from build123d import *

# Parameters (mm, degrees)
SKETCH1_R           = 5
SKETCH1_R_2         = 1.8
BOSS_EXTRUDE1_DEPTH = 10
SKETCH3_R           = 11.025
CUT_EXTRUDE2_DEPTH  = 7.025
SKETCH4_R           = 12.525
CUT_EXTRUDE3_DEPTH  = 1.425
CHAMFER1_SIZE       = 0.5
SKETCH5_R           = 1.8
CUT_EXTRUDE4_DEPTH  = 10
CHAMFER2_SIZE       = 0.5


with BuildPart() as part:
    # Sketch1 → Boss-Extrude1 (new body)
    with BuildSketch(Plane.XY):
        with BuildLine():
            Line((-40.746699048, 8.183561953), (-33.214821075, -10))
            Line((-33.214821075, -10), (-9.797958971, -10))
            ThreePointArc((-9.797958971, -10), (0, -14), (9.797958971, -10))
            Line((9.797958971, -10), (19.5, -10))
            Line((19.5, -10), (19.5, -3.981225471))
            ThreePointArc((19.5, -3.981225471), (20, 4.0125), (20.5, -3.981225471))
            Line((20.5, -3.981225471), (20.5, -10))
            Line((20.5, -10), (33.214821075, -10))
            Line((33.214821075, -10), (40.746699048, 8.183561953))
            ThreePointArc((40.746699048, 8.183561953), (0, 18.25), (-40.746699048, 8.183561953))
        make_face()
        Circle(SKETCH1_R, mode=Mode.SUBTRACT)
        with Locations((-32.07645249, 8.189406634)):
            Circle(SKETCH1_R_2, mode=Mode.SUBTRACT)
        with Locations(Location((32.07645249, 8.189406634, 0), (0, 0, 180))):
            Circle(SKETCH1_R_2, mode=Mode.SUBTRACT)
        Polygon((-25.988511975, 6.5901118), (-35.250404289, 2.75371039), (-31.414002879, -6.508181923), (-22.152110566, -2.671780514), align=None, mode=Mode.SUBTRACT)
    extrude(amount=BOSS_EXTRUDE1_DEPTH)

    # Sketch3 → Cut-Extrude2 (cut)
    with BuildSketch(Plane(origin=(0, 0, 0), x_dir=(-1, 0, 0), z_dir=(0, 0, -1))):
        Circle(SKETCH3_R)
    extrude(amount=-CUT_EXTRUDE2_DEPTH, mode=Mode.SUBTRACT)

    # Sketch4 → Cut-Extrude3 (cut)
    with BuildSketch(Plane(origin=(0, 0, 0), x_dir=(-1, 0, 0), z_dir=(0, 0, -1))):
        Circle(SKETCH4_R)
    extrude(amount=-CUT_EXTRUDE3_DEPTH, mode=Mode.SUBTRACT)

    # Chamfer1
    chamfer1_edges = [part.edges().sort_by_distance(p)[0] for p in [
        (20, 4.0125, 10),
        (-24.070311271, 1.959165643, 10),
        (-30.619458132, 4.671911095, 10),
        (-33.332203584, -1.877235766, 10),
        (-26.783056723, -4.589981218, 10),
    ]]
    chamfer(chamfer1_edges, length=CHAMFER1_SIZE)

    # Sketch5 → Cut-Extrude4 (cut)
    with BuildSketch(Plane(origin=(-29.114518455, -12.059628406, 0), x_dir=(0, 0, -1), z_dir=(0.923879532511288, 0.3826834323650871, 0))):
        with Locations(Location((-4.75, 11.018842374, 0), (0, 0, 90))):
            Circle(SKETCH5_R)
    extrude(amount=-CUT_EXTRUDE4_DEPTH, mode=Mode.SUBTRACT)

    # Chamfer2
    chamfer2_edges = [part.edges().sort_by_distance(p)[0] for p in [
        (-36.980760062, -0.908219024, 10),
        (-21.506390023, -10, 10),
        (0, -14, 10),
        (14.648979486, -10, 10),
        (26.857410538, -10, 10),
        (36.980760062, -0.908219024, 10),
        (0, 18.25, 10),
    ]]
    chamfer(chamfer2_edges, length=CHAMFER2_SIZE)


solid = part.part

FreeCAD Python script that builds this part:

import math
import FreeCAD as App
import Part
import Sketcher
from FreeCAD import Vector
Q = App.Units.Quantity


def edges_at(feature, points):
    """Names of the edges that pass closest to the given points."""
    edges = feature.Shape.Edges
    near = lambda p: min(range(len(edges)), key=lambda i: edges[i].distToShape(Part.Vertex(*p))[0])
    return sorted({f"Edge{near(p) + 1}" for p in points})

doc = App.newDocument("Part")
body = doc.addObject("PartDesign::Body", "Body")

# Sketch on XY plane
sketch1 = body.newObject("Sketcher::SketchObject", "Sketch")
sketch1.AttachmentSupport = (doc.getObject("XY_Plane"), [""])
sketch1.MapMode = "FlatFace"
sketch1.addGeometry([
    Part.LineSegment(Vector(-40.7, 8.2, 0), Vector(-33.2, -10, 0)),  # 0
    Part.LineSegment(Vector(-33.2, -10, 0), Vector(-9.8, -10, 0)),  # 1
    Part.ArcOfCircle(Part.Circle(Vector(0, 0, 0), Vector(0, 0, 1), 14), math.radians(-134), math.radians(-46)),  # 2
    Part.LineSegment(Vector(9.8, -10, 0), Vector(19.5, -10, 0)),  # 3
    Part.LineSegment(Vector(19.5, -10, 0), Vector(19.5, -4, 0)),  # 4
    Part.ArcOfCircle(Part.Circle(Vector(20, 0, 0), Vector(0, 0, 1), 4), math.radians(-83), math.radians(263)),  # 5
    Part.LineSegment(Vector(20.5, -4, 0), Vector(20.5, -10, 0)),  # 6
    Part.LineSegment(Vector(20.5, -10, 0), Vector(33.2, -10, 0)),  # 7
    Part.LineSegment(Vector(33.2, -10, 0), Vector(40.7, 8.2, 0)),  # 8
    Part.ArcOfCircle(Part.Circle(Vector(0, -69.3, 0), Vector(0, 0, 1), 87.5), math.radians(62), math.radians(118)),  # 9
    Part.LineSegment(Vector(-35.3, 2.8, 0), Vector(-26, 6.6, 0)),  # 10
    Part.LineSegment(Vector(-26, 6.6, 0), Vector(-22.2, -2.7, 0)),  # 11
    Part.LineSegment(Vector(-22.2, -2.7, 0), Vector(-31.4, -6.5, 0)),  # 12
    Part.LineSegment(Vector(-31.4, -6.5, 0), Vector(-35.3, 2.8, 0)),  # 13
    Part.Circle(Vector(0, 0, 0), Vector(0, 0, 1), 5),  # 14
    Part.Circle(Vector(-32.1, 8.2, 0), Vector(0, 0, 1), 1.8),  # 15
    Part.Circle(Vector(32.1, 8.2, 0), Vector(0, 0, 1), 1.8),  # 16
], False)
sketch1.addConstraint([
    Sketcher.Constraint("Coincident", 0, 2, 1, 1),
    Sketcher.Constraint("Coincident", 1, 2, 2, 1),
    Sketcher.Constraint("Coincident", 2, 2, 3, 1),
    Sketcher.Constraint("Coincident", 3, 2, 4, 1),
    Sketcher.Constraint("Coincident", 4, 2, 5, 2),
    Sketcher.Constraint("Coincident", 5, 1, 6, 1),
    Sketcher.Constraint("Coincident", 6, 2, 7, 1),
    Sketcher.Constraint("Coincident", 7, 2, 8, 1),
    Sketcher.Constraint("Coincident", 8, 2, 9, 1),
    Sketcher.Constraint("Coincident", 9, 2, 0, 1),
    Sketcher.Constraint("Coincident", 10, 2, 11, 1),
    Sketcher.Constraint("Coincident", 11, 2, 12, 1),
    Sketcher.Constraint("Coincident", 12, 2, 13, 1),
    Sketcher.Constraint("Coincident", 13, 2, 10, 1),
    Sketcher.Constraint("Horizontal", 1),
    Sketcher.Constraint("Horizontal", 3),
    Sketcher.Constraint("Vertical", 4),
    Sketcher.Constraint("Vertical", 6),
    Sketcher.Constraint("Horizontal", 7),
    Sketcher.Constraint("Coincident", 2, 3, -1, 1),
    Sketcher.Constraint("Coincident", 14, 3, -1, 1),
    Sketcher.Constraint("Equal", 15, 16),
    Sketcher.Constraint("Symmetric", 15, 3, 16, 3, -2),
    Sketcher.Constraint("Symmetric", 0, 2, 7, 2, -2),
    Sketcher.Constraint("Symmetric", 8, 2, 9, 2, -2),
    Sketcher.Constraint("PointOnObject", 5, 3, -1),
    Sketcher.Constraint("Perpendicular", 0, 10),
    Sketcher.Constraint("Perpendicular", 10, 11),
    Sketcher.Constraint("Perpendicular", 11, 12),
    Sketcher.Constraint("Perpendicular", 12, 13),
    Sketcher.Constraint("Horizontal", 1, 2, 2, 2),
    Sketcher.Constraint("Horizontal", 4, 2, 5, 1),
    Sketcher.Constraint("Equal", 10, 11),
    Sketcher.Constraint("Diameter", 14, Q("10 mm")),
    Sketcher.Constraint("Radius", 2, Q("14 mm")),
    Sketcher.Constraint("Diameter", 15, Q("3.6 mm")),
    Sketcher.Constraint("Radius", 9, Q("87.5 mm")),
    Sketcher.Constraint("DistanceX", -1, 1, 5, 3, Q("20 mm")),
    Sketcher.Constraint("DistanceY", 0, 2, -1, 1, Q("10 mm")),
    Sketcher.Constraint("Angle", 0, Q("-67.5 deg")),
    Sketcher.Constraint("DistanceX", 4, 2, 5, 1, Q("1 mm")),
    Sketcher.Constraint("Radius", 5, Q("4.0125 mm")),
    Sketcher.Constraint("DistanceY", 9, 3, -1, 1, Q("69.25 mm")),
    Sketcher.Constraint("Distance", 10, Q("10.025 mm")),
    Sketcher.Constraint("DistanceX", 7, 1, 7, 2, Q("12.714821 mm")),
    Sketcher.Constraint("DistanceX", 10, 2, -1, 1, Q("25.988512 mm")),
    Sketcher.Constraint("DistanceY", -1, 1, 10, 2, Q("6.590112 mm")),
    Sketcher.Constraint("DistanceX", 0, 2, 15, 3, Q("1.138369 mm")),
    Sketcher.Constraint("DistanceY", 12, 2, 15, 3, Q("14.697589 mm")),
])
pad1 = body.newObject("PartDesign::Pad", "Pad")
pad1.Profile = sketch1
pad1.Length = 10

# Sketch on XY plane
sketch2 = body.newObject("Sketcher::SketchObject", "Sketch001")
sketch2.AttachmentSupport = (doc.getObject("XY_Plane"), [""])
sketch2.MapMode = "FlatFace"
sketch2.addGeometry(Part.Circle(Vector(0, 0, 0), Vector(0, 0, 1), 11), False)
sketch2.addConstraint([
    Sketcher.Constraint("Coincident", 0, 3, -1, 1),
    Sketcher.Constraint("Diameter", 0, Q("22.05 mm")),
])
pocket1 = body.newObject("PartDesign::Pocket", "Pocket")
pocket1.Profile = sketch2
pocket1.Length = 7.025
pocket1.Reversed = True

# Sketch on XY plane
sketch3 = body.newObject("Sketcher::SketchObject", "Sketch002")
sketch3.AttachmentSupport = (doc.getObject("XY_Plane"), [""])
sketch3.MapMode = "FlatFace"
sketch3.addGeometry(Part.Circle(Vector(0, 0, 0), Vector(0, 0, 1), 13), False)
sketch3.addConstraint([
    Sketcher.Constraint("Coincident", 0, 3, -1, 1),
    Sketcher.Constraint("Diameter", 0, Q("25.05 mm")),
])
pocket2 = body.newObject("PartDesign::Pocket", "Pocket001")
pocket2.Profile = sketch3
pocket2.Length = 1.425
pocket2.Reversed = True
doc.recompute()

chamfer = body.newObject("PartDesign::Chamfer", "Chamfer")
chamfer.Base = (pocket2, edges_at(pocket2, [
    (20, 4.013, 10),
    (-24.07, 1.959, 10),
    (-30.619, 4.672, 10),
    (-33.332, -1.877, 10),
    (-26.783, -4.59, 10),
]))
chamfer.Size = 0.5

# Sketch on an angled plane
sketch4 = body.newObject("Sketcher::SketchObject", "Sketch003")
sketch4.Placement = App.Placement(Vector(-29.114518, -12.059628, 0), App.Rotation(Vector(0, 0, -1), Vector(-0.382683432, 0.923879533, 0), Vector(0.923879533, 0.382683432, 0), "ZXY"))
sketch4.addGeometry(Part.Circle(Vector(-4.8, 11, 0), Vector(0, 0, 1), 1.8), False)
sketch4.addConstraint([
    Sketcher.Constraint("Diameter", 0, Q("3.6 mm")),
    Sketcher.Constraint("DistanceX", 0, 3, -1, 1, Q("4.75 mm")),
    Sketcher.Constraint("DistanceY", -1, 1, 0, 3, Q("11.018842 mm")),
])
pocket3 = body.newObject("PartDesign::Pocket", "Pocket002")
pocket3.Profile = sketch4
pocket3.Length = 10
doc.recompute()

chamfer2 = body.newObject("PartDesign::Chamfer", "Chamfer001")
chamfer2.Base = (pocket3, edges_at(pocket3, [
    (-36.981, -0.908, 10),
    (-21.506, -10, 10),
    (0, -14, 10),
    (14.649, -10, 10),
    (26.857, -10, 10),
    (36.981, -0.908, 10),
    (0, 18.25, 10),
]))
chamfer2.Size = 0.5

doc.recompute()
